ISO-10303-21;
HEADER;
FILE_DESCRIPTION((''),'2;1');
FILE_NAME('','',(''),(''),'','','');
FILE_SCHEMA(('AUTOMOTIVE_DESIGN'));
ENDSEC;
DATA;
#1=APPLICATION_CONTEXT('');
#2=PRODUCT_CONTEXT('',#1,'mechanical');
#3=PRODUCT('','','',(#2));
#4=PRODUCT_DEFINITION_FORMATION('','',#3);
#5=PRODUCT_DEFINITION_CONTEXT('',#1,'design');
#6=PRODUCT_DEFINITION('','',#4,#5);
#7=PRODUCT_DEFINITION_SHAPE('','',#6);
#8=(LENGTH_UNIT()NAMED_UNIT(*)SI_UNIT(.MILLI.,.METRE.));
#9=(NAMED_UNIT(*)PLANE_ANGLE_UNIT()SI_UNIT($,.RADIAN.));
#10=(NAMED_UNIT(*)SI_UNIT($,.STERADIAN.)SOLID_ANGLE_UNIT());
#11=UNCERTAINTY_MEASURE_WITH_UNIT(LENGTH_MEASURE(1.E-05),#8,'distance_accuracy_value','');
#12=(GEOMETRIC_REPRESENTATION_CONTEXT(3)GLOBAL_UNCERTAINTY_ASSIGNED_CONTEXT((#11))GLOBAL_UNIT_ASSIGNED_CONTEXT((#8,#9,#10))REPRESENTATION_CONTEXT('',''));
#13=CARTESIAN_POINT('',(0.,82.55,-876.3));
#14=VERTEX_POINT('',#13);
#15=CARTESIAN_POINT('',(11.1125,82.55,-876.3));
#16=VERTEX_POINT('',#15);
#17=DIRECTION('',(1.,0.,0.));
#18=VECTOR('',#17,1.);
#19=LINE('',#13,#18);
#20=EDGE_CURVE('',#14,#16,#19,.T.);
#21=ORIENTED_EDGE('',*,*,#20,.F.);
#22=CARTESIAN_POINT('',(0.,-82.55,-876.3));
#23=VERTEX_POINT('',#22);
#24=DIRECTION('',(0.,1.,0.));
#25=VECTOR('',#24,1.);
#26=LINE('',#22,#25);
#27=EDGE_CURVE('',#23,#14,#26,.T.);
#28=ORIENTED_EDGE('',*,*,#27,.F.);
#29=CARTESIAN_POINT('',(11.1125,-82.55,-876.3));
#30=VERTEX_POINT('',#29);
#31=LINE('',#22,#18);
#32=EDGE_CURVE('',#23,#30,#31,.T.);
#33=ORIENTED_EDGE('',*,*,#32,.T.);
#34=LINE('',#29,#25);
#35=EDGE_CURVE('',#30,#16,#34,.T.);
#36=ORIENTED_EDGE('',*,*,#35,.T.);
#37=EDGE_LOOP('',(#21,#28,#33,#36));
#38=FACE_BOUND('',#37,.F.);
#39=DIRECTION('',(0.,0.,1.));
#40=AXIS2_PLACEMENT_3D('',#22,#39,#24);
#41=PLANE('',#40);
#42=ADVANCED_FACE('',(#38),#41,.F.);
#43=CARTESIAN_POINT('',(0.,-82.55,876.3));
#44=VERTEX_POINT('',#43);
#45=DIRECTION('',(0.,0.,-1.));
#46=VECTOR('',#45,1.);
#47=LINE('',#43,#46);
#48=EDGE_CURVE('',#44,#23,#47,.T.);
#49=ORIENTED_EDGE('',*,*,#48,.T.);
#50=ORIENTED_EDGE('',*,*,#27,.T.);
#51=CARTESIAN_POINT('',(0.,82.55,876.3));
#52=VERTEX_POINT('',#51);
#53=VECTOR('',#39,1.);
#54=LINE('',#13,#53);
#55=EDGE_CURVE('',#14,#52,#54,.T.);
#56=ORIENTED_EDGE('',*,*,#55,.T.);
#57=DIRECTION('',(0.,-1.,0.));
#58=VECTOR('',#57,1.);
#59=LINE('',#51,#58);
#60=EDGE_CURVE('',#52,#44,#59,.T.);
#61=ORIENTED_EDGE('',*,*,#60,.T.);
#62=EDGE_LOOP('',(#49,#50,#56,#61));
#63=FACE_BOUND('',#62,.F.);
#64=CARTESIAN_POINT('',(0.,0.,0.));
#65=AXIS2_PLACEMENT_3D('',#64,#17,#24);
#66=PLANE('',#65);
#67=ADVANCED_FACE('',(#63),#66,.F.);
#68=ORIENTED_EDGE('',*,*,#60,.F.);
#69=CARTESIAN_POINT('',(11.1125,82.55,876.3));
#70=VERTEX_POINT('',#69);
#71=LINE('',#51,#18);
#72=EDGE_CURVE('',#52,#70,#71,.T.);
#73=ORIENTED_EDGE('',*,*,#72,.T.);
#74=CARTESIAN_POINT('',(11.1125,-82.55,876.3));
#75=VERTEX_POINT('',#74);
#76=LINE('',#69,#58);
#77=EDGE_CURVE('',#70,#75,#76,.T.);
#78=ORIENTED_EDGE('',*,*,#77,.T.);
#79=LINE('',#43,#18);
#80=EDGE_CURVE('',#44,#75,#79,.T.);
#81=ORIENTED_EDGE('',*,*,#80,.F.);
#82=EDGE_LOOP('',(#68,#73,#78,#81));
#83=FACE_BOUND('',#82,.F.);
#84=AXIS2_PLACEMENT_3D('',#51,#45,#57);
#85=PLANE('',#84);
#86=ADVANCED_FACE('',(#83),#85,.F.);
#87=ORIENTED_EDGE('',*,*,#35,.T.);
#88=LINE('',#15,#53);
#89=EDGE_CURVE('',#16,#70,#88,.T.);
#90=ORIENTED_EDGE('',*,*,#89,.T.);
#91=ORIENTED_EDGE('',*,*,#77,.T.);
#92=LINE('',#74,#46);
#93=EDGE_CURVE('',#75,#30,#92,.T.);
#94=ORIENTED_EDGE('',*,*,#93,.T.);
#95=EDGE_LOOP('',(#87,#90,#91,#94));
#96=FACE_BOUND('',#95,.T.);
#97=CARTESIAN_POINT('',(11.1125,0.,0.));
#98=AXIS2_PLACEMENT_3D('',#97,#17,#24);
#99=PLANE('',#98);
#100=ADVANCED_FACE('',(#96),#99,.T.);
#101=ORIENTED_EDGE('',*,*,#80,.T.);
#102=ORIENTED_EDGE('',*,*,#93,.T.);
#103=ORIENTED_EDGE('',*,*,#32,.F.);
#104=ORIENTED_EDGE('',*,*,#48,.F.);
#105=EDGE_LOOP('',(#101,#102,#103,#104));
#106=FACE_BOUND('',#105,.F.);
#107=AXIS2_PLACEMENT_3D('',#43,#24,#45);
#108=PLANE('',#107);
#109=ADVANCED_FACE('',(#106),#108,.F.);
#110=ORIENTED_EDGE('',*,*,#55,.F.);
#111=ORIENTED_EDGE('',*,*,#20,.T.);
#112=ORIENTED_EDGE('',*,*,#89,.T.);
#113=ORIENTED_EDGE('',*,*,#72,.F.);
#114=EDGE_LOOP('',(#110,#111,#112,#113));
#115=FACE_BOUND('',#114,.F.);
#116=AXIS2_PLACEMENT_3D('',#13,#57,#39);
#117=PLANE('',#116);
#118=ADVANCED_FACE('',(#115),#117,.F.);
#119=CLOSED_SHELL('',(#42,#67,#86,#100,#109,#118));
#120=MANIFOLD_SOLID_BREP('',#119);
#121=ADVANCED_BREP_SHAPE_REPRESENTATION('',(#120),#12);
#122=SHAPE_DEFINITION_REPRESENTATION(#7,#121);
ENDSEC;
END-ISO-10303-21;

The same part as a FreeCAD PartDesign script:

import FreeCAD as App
import Part
import Sketcher

V = App.Vector
Q = App.Units.Quantity


def add_polygon(sketch, points):
    """Adds a closed chain of lines whose ends are joined by coincident constraints."""
    first, n = sketch.GeometryCount, len(points)
    for a, b in zip(points, points[1:] + points[:1]):
        sketch.addGeometry(Part.LineSegment(App.Vector(*a, 0), App.Vector(*b, 0)), False)
    for i in range(n):
        sketch.addConstraint(Sketcher.Constraint("Coincident", first + i, 2, first + (i + 1) % n, 1))

doc = App.newDocument("Part")
body = doc.addObject("PartDesign::Body", "Body")

sketch1 = body.newObject("Sketcher::SketchObject", "Sketch")
sketch1.AttachmentSupport = (doc.getObject("YZ_Plane"), [""])
sketch1.MapMode = "FlatFace"
add_polygon(sketch1, [(82.55, 876.3), (-82.55, 876.3), (-82.55, -876.3), (82.55, -876.3)])
sketch1.addConstraint([
    Sketcher.Constraint("Horizontal", 0),
    Sketcher.Constraint("Vertical", 1),
    Sketcher.Constraint("Horizontal", 2),
    Sketcher.Constraint("Vertical", 3),
    Sketcher.Constraint("Symmetric", 0, 2, 2, 2, -1, 1),
    Sketcher.Constraint("DistanceY", 1, 2, 1, 1, Q("69 in")),
    Sketcher.Constraint("DistanceX", 0, 2, 0, 1, Q("6.5 in")),
])
pad1 = body.newObject("PartDesign::Pad", "Pad")
pad1.Profile = sketch1
pad1.Length = Q("0.4375 in")

doc.recompute()
